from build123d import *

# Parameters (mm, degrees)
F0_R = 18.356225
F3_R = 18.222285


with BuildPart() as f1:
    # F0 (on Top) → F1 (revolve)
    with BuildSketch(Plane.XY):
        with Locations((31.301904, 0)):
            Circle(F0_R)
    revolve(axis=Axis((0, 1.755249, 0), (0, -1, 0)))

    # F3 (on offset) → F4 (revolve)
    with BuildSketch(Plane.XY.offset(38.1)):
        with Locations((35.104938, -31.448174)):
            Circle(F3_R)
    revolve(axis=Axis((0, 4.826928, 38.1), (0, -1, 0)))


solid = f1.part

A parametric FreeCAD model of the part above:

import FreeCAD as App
import Part
import Sketcher
from FreeCAD import Vector

doc = App.newDocument("Part")
body = doc.addObject("PartDesign::Body", "Body")

sketch1 = body.newObject("Sketcher::SketchObject", "Sketch")
sketch1.AttachmentSupport = (doc.getObject("XY_Plane"), [""])
sketch1.MapMode = "FlatFace"
sketch1.addGeometry(Part.Circle(Vector(31, 0, 0), Vector(0, 0, 1), 18), False)
sketch1.addConstraint(Sketcher.Constraint("PointOnObject", 0, 3, -1))
sketch1.addConstraint(Sketcher.Constraint("Diameter", 0, 36.71245))
sketch1.addConstraint(Sketcher.Constraint("DistanceX", -1, 1, 0, 3, 31.301904))
revolution = body.newObject("PartDesign::Revolution", "Revolution")
revolution.Profile = sketch1
revolution.ReferenceAxis = (sketch1, ["V_Axis"])
revolution.Angle = 360

sketch2 = body.newObject("Sketcher::SketchObject", "Sketch001")
sketch2.AttachmentSupport = (doc.getObject("XY_Plane"), [""])
sketch2.MapMode = "FlatFace"
sketch2.AttachmentOffset = App.Placement(Vector(0, 0, 38.1), App.Rotation())
sketch2.addGeometry(Part.Circle(Vector(35, -31, 0), Vector(0, 0, 1), 18), False)
sketch2.addConstraint(Sketcher.Constraint("Diameter", 0, 36.44457))
sketch2.addConstraint(Sketcher.Constraint("DistanceX", -1, 1, 0, 3, 35.104938))
sketch2.addConstraint(Sketcher.Constraint("DistanceY", 0, 3, -1, 1, 31.448174))
revolution2 = body.newObject("PartDesign::Revolution", "Revolution001")
revolution2.Profile = sketch2
revolution2.ReferenceAxis = (sketch2, ["V_Axis"])
revolution2.Angle = 360

doc.recompute()
